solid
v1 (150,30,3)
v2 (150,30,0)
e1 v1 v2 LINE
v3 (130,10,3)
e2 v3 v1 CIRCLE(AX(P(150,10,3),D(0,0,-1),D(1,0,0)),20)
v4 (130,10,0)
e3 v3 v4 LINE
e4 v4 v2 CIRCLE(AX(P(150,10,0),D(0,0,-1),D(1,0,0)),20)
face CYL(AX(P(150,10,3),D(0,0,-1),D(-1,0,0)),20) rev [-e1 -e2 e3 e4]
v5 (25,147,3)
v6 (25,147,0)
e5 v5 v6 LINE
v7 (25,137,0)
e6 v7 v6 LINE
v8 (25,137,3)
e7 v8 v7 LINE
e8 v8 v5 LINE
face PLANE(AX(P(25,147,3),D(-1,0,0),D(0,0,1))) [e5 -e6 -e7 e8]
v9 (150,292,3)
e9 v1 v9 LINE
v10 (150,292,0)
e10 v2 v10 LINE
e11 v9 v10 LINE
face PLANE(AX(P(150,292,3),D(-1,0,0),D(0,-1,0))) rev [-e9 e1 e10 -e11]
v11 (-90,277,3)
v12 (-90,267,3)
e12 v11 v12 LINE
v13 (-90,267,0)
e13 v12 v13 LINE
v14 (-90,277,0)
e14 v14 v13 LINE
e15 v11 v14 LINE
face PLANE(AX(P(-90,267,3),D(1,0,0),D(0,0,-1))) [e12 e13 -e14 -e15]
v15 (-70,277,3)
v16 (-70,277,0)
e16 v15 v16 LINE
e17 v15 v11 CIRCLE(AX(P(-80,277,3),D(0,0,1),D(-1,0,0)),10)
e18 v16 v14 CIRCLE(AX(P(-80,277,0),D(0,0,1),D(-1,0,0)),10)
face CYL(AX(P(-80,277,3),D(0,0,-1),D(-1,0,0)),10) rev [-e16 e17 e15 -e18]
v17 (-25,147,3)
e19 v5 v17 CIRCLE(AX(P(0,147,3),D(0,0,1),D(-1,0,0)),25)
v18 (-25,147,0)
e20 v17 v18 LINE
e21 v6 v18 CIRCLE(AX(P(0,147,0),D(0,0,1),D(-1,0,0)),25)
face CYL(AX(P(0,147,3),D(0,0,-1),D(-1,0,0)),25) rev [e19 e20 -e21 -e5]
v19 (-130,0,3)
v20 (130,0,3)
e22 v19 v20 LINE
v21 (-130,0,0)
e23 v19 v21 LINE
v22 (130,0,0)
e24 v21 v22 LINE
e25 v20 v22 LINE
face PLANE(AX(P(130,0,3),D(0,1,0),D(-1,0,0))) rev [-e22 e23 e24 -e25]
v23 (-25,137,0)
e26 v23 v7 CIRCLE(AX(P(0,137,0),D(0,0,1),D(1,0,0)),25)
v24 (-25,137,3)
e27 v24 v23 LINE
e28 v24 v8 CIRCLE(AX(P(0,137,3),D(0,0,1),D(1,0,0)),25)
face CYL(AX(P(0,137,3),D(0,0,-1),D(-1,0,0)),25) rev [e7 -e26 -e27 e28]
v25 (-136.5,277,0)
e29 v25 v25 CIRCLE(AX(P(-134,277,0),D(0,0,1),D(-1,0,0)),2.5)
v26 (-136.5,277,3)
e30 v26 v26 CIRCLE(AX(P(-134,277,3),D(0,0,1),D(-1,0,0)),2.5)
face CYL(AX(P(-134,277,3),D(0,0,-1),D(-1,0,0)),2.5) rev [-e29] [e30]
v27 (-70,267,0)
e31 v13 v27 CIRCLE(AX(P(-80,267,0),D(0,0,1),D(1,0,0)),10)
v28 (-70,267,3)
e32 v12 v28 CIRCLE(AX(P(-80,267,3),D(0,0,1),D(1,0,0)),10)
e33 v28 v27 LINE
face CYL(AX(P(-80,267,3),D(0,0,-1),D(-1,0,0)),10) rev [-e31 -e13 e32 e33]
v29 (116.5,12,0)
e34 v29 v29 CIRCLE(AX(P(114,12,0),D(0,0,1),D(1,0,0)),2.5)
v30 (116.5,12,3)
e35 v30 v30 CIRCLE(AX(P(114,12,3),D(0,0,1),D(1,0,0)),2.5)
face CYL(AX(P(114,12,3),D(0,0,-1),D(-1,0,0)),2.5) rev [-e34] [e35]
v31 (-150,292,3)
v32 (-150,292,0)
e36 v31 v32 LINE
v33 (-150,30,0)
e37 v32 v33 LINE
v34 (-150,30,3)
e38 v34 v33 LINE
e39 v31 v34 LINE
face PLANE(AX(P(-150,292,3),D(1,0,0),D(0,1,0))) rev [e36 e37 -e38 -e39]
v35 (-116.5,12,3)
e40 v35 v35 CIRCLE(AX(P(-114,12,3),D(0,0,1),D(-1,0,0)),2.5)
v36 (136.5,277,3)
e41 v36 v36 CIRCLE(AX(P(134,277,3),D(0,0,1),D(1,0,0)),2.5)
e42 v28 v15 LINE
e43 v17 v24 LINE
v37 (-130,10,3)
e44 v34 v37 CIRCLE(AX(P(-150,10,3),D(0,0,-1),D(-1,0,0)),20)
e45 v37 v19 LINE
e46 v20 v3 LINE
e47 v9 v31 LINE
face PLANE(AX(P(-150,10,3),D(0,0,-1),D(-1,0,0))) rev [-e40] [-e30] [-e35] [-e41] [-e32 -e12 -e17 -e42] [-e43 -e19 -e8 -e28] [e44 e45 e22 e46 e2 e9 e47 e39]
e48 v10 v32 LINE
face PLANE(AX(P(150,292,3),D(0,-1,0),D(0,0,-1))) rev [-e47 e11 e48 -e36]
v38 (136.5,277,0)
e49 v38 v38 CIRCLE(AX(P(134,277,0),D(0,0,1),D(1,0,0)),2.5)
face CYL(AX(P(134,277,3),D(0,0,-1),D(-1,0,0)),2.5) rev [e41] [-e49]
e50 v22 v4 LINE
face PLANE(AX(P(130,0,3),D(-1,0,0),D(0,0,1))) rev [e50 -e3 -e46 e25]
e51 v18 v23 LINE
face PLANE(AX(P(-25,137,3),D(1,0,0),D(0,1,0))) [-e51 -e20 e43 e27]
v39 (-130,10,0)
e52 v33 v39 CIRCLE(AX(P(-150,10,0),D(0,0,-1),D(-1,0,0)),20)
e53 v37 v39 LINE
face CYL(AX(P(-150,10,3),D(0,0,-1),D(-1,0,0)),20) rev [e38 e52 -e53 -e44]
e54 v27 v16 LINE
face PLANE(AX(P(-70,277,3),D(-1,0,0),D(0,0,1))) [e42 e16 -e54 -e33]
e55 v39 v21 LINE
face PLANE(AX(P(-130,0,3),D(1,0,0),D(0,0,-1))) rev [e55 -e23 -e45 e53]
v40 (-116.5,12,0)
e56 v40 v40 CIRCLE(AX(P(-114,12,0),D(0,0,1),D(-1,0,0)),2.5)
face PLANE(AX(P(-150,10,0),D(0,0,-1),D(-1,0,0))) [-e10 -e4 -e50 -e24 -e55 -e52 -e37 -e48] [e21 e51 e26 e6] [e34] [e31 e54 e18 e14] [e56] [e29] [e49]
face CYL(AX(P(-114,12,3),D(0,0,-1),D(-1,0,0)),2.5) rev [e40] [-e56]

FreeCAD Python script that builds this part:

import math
import FreeCAD as App
import Part
import Sketcher
from FreeCAD import Vector
Q = App.Units.Quantity

doc = App.newDocument("Part")
body = doc.addObject("PartDesign::Body", "Body")

# Sketch on XY plane
sketch1 = body.newObject("Sketcher::SketchObject", "Sketch")
sketch1.AttachmentSupport = (doc.getObject("XY_Plane"), [""])
sketch1.MapMode = "FlatFace"
sketch1.addGeometry(Part.LineSegment(Vector(150, 292, 0), Vector(-150, 292, 0)), False)
sketch1.addGeometry(Part.LineSegment(Vector(-150, 292, 0), Vector(-150, 30, 0)), False)
sketch1.addGeometry(Part.ArcOfCircle(Part.Circle(Vector(-150, 10, 0), Vector(0, 0, 1), 20), math.radians(0), math.radians(90)), False)
sketch1.addGeometry(Part.LineSegment(Vector(-130, 10, 0), Vector(-130, 0, 0)), False)
sketch1.addGeometry(Part.LineSegment(Vector(-130, 0, 0), Vector(130, 0, 0)), False)
sketch1.addGeometry(Part.LineSegment(Vector(130, 0, 0), Vector(130, 10, 0)), False)
sketch1.addGeometry(Part.ArcOfCircle(Part.Circle(Vector(150, 10, 0), Vector(0, 0, 1), 20), math.radians(90), math.radians(180)), False)
sketch1.addGeometry(Part.LineSegment(Vector(150, 30, 0), Vector(150, 292, 0)), False)
sketch1.addGeometry(Part.Circle(Vector(-114, 12, 0), Vector(0, 0, 1), 2.5), False)
sketch1.addGeometry(Part.Circle(Vector(114, 12, 0), Vector(0, 0, 1), 2.5), False)
sketch1.addGeometry(Part.ArcOfCircle(Part.Circle(Vector(0, 137, 0), Vector(0, 0, 1), 25), math.radians(180), math.radians(360)), False)
sketch1.addGeometry(Part.LineSegment(Vector(-25, 137, 0), Vector(-25, 147, 0)), False)
sketch1.addGeometry(Part.ArcOfCircle(Part.Circle(Vector(0, 147, 0), Vector(0, 0, 1), 25), math.radians(0), math.radians(180)), False)
sketch1.addGeometry(Part.LineSegment(Vector(25, 147, 0), Vector(25, 137, 0)), False)
sketch1.addGeometry(Part.Circle(Vector(-134, 277, 0), Vector(0, 0, 1), 2.5), False)
sketch1.addGeometry(Part.ArcOfCircle(Part.Circle(Vector(-80, 267, 0), Vector(0, 0, 1), 10), math.radians(180), math.radians(360)), False)
sketch1.addGeometry(Part.LineSegment(Vector(-90, 267, 0), Vector(-90, 277, 0)), False)
sketch1.addGeometry(Part.ArcOfCircle(Part.Circle(Vector(-80, 277, 0), Vector(0, 0, 1), 10), math.radians(0), math.radians(180)), False)
sketch1.addGeometry(Part.LineSegment(Vector(-70, 277, 0), Vector(-70, 267, 0)), False)
sketch1.addGeometry(Part.Circle(Vector(134, 277, 0), Vector(0, 0, 1), 2.5), False)
sketch1.addConstraint(Sketcher.Constraint("Coincident", 0, 2, 1, 1))
sketch1.addConstraint(Sketcher.Constraint("Coincident", 1, 2, 2, 2))
sketch1.addConstraint(Sketcher.Constraint("Tangent", 2, 1, 3, 1))
sketch1.addConstraint(Sketcher.Constraint("Coincident", 3, 2, 4, 1))
sketch1.addConstraint(Sketcher.Constraint("Coincident", 4, 2, 5, 1))
sketch1.addConstraint(Sketcher.Constraint("Tangent", 5, 2, 6, 2))
sketch1.addConstraint(Sketcher.Constraint("Coincident", 6, 1, 7, 1))
sketch1.addConstraint(Sketcher.Constraint("Coincident", 7, 2, 0, 1))
sketch1.addConstraint(Sketcher.Constraint("Tangent", 10, 1, 11, 1))
sketch1.addConstraint(Sketcher.Constraint("Tangent", 11, 2, 12, 2))
sketch1.addConstraint(Sketcher.Constraint("Tangent", 12, 1, 13, 1))
sketch1.addConstraint(Sketcher.Constraint("Tangent", 13, 2, 10, 2))
sketch1.addConstraint(Sketcher.Constraint("Tangent", 15, 1, 16, 1))
sketch1.addConstraint(Sketcher.Constraint("Tangent", 16, 2, 17, 2))
sketch1.addConstraint(Sketcher.Constraint("Tangent", 17, 1, 18, 1))
sketch1.addConstraint(Sketcher.Constraint("Tangent", 18, 2, 15, 2))
sketch1.addConstraint(Sketcher.Constraint("Horizontal", 0))
sketch1.addConstraint(Sketcher.Constraint("Vertical", 1))
sketch1.addConstraint(Sketcher.Constraint("Vertical", 3))
sketch1.addConstraint(Sketcher.Constraint("Horizontal", 4))
sketch1.addConstraint(Sketcher.Constraint("Vertical", 5))
sketch1.addConstraint(Sketcher.Constraint("Vertical", 7))
sketch1.addConstraint(Sketcher.Constraint("Vertical", 11))
sketch1.addConstraint(Sketcher.Constraint("Vertical", 13))
sketch1.addConstraint(Sketcher.Constraint("Vertical", 16))
sketch1.addConstraint(Sketcher.Constraint("Vertical", 18))
sketch1.addConstraint(Sketcher.Constraint("Equal", 2, 6))
sketch1.addConstraint(Sketcher.Constraint("Equal", 8, 9))
sketch1.addConstraint(Sketcher.Constraint("Equal", 9, 14))
sketch1.addConstraint(Sketcher.Constraint("Equal", 14, 19))
sketch1.addConstraint(Sketcher.Constraint("Symmetric", 3, 2, 4, 2, -1, 1))
sketch1.addConstraint(Sketcher.Constraint("Symmetric", 8, 3, 9, 3, -2))
sketch1.addConstraint(Sketcher.Constraint("Symmetric", 14, 3, 19, 3, -2))
sketch1.addConstraint(Sketcher.Constraint("Symmetric", 1, 2, 6, 1, -2))
sketch1.addConstraint(Sketcher.Constraint("PointOnObject", 10, 3, -2))
sketch1.addConstraint(Sketcher.Constraint("Horizontal", 14, 3, 17, 3))
sketch1.addConstraint(Sketcher.Constraint("Vertical", 2, 3, 0, 2))
sketch1.addConstraint(Sketcher.Constraint("Equal", 5, 11))
sketch1.addConstraint(Sketcher.Constraint("Equal", 13, 16))
sketch1.addConstraint(Sketcher.Constraint("Diameter", 8, Q("5 mm")))
sketch1.addConstraint(Sketcher.Constraint("Radius", 2, Q("20 mm")))
sketch1.addConstraint(Sketcher.Constraint("Radius", 10, Q("25 mm")))
sketch1.addConstraint(Sketcher.Constraint("Radius", 15, Q("10 mm")))
sketch1.addConstraint(Sketcher.Constraint("DistanceX", 0, 2, 0, 1, Q("300 mm")))
sketch1.addConstraint(Sketcher.Constraint("DistanceY", 1, 2, 1, 1, Q("262 mm")))
sketch1.addConstraint(Sketcher.Constraint("DistanceY", 3, 2, 3, 1, Q("10 mm")))
sketch1.addConstraint(Sketcher.Constraint("DistanceX", 8, 3, -1, 1, Q("114 mm")))
sketch1.addConstraint(Sketcher.Constraint("DistanceY", -1, 1, 8, 3, Q("12 mm")))
sketch1.addConstraint(Sketcher.Constraint("DistanceY", -1, 1, 10, 3, Q("137 mm")))
sketch1.addConstraint(Sketcher.Constraint("DistanceX", 14, 3, -1, 1, Q("134 mm")))
sketch1.addConstraint(Sketcher.Constraint("DistanceY", -1, 1, 14, 3, Q("277 mm")))
sketch1.addConstraint(Sketcher.Constraint("DistanceX", 15, 3, -1, 1, Q("80 mm")))
pad1 = body.newObject("PartDesign::Pad", "Pad")
pad1.Profile = sketch1
pad1.Length = 3

doc.recompute()
